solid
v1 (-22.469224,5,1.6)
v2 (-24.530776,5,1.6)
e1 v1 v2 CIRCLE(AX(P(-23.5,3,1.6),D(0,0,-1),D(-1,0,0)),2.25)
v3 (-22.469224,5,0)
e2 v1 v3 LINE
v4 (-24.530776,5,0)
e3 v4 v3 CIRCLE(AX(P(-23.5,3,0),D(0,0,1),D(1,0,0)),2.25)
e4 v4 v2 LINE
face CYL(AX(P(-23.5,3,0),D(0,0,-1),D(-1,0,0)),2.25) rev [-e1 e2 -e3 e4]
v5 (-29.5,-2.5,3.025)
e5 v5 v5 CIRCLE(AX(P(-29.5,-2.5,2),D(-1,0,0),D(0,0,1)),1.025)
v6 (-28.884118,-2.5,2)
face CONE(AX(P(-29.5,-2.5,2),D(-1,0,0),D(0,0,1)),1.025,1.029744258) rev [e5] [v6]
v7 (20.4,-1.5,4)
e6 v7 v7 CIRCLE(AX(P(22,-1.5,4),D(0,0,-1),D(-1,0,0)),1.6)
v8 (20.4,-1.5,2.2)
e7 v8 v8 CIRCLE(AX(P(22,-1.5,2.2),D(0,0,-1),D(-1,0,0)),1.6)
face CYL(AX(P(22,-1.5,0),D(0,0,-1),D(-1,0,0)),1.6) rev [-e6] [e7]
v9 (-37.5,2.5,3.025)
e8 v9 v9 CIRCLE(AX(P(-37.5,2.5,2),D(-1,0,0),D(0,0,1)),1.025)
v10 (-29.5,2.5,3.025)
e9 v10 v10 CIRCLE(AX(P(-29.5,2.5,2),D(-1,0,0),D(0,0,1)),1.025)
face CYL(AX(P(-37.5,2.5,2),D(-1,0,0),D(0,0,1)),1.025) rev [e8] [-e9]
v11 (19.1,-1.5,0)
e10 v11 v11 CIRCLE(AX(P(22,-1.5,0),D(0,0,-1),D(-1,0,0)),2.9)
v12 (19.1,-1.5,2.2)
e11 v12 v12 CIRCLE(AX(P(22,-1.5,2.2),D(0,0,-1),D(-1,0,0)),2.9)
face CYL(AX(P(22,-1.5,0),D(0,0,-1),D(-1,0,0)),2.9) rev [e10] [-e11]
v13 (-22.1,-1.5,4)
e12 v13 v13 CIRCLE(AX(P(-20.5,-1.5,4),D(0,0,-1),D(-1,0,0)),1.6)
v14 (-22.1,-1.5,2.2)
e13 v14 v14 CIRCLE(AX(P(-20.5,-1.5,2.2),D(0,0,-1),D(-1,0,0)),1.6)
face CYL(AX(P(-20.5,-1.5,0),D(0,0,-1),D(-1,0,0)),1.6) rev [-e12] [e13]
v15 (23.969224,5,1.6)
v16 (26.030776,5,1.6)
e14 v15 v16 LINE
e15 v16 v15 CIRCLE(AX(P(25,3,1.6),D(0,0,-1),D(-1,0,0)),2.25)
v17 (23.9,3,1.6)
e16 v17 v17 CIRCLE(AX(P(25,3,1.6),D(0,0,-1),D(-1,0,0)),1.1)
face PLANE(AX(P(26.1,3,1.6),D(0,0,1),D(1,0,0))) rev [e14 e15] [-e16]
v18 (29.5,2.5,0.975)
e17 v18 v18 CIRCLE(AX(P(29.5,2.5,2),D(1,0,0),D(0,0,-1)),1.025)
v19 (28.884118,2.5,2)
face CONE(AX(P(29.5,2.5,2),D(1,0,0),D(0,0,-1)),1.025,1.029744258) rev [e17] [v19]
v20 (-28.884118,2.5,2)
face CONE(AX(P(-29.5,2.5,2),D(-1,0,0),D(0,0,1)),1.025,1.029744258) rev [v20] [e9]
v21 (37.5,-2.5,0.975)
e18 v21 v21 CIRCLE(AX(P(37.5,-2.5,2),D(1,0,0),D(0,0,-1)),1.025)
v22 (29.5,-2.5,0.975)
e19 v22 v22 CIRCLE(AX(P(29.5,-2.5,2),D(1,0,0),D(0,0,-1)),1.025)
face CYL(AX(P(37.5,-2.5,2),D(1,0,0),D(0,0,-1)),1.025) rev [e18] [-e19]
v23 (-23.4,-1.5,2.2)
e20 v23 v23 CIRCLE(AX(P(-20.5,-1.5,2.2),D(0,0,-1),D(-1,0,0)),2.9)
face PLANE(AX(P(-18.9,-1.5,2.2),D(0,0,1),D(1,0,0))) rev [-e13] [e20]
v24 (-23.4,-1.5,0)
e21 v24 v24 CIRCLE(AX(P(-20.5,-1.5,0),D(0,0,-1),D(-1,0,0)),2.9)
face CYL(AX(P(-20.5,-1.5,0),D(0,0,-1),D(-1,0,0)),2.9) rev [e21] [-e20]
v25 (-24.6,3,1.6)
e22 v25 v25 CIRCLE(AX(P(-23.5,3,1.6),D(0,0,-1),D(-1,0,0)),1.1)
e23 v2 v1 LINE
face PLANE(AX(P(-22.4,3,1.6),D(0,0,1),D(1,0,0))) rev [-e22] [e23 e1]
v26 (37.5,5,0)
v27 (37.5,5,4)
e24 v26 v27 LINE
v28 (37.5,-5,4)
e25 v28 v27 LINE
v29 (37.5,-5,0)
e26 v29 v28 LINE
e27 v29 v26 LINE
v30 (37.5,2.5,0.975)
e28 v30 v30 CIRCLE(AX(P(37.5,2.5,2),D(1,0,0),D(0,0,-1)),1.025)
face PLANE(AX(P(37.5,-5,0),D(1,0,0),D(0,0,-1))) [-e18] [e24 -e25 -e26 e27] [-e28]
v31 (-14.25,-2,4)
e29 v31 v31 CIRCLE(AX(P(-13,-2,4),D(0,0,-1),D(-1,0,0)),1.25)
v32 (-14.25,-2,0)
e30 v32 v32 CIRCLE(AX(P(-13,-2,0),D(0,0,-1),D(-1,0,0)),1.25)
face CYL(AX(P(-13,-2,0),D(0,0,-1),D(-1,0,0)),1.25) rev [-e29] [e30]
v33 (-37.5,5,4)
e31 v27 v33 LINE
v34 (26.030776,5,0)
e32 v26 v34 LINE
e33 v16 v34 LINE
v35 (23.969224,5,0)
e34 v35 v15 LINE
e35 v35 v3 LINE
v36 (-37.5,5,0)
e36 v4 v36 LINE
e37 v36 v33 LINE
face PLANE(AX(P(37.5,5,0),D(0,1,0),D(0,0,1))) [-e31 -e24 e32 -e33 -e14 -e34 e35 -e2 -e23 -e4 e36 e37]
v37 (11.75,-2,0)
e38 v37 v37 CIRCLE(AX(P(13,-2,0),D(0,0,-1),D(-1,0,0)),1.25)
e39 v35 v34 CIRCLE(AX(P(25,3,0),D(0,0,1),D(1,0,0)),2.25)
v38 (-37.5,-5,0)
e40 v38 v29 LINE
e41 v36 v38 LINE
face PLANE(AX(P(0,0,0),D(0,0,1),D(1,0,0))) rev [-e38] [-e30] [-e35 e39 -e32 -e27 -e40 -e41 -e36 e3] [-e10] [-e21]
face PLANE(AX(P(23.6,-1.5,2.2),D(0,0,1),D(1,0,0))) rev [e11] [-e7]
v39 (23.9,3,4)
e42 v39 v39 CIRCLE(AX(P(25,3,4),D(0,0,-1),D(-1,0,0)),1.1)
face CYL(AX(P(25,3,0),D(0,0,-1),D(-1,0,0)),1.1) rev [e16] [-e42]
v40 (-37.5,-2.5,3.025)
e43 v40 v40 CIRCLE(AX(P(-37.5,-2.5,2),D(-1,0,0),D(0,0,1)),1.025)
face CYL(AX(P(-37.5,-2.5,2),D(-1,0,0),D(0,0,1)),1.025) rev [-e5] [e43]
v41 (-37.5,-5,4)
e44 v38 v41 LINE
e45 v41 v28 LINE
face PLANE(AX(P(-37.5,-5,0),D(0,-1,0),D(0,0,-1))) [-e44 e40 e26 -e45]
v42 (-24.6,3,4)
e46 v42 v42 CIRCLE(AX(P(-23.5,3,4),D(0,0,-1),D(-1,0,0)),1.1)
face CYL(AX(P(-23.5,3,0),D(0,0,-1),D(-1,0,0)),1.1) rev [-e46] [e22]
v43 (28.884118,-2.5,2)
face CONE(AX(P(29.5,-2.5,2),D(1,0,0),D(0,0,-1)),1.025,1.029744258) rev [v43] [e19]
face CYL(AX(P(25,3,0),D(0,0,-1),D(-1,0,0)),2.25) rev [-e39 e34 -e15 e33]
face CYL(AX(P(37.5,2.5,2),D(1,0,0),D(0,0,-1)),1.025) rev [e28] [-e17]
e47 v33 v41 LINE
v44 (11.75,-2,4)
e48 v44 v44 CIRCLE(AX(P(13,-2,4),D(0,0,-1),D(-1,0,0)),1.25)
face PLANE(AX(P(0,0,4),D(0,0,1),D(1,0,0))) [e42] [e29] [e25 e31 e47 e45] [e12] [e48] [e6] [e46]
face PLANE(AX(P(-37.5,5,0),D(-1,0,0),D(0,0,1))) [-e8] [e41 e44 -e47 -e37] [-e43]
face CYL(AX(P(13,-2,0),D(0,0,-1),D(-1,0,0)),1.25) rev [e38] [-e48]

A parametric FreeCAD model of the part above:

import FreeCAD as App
import Part
import Sketcher
from FreeCAD import Vector


def add_polygon(sketch, points):
    """Adds a closed chain of lines whose ends are joined by coincident constraints."""
    first, n = sketch.GeometryCount, len(points)
    for a, b in zip(points, points[1:] + points[:1]):
        sketch.addGeometry(Part.LineSegment(App.Vector(*a, 0), App.Vector(*b, 0)), False)
    for i in range(n):
        sketch.addConstraint(Sketcher.Constraint("Coincident", first + i, 2, first + (i + 1) % n, 1))

doc = App.newDocument("Part")
body = doc.addObject("PartDesign::Body", "Body")

# Sketch on XY plane
sketch1 = body.newObject("Sketcher::SketchObject", "Sketch")
sketch1.AttachmentSupport = (doc.getObject("XY_Plane"), [""])
sketch1.MapMode = "FlatFace"
sketch1.AttachmentOffset = App.Placement(Vector(0, 0, 4), App.Rotation())
add_polygon(sketch1, [(-37.5, 5), (-37.5, -5), (37.5, -5), (37.5, 5)])  # lines 0-3
sketch1.addConstraint(Sketcher.Constraint("Vertical", 0))
sketch1.addConstraint(Sketcher.Constraint("Horizontal", 1))
sketch1.addConstraint(Sketcher.Constraint("Vertical", 2))
sketch1.addConstraint(Sketcher.Constraint("Horizontal", 3))
sketch1.addConstraint(Sketcher.Constraint("Symmetric", 0, 2, 2, 2, -1, 1))
sketch1.addConstraint(Sketcher.Constraint("DistanceX", 1, 1, 1, 2, 75.0))
sketch1.addConstraint(Sketcher.Constraint("DistanceY", 0, 2, 0, 1, 10.0))
pad1 = body.newObject("PartDesign::Pad", "Pad")
pad1.Profile = sketch1
pad1.Length = 4
pad1.Reversed = True

# Sketch on XY plane
sketch2 = body.newObject("Sketcher::SketchObject", "Sketch001")
sketch2.AttachmentSupport = (doc.getObject("XY_Plane"), [""])
sketch2.MapMode = "FlatFace"
sketch2.addGeometry(Part.Circle(Vector(13, -2, 0), Vector(0, 0, 1), 1.25), False)
sketch2.addGeometry(Part.Circle(Vector(-13, -2, 0), Vector(0, 0, 1), 1.25), False)
sketch2.addConstraint(Sketcher.Constraint("Equal", 0, 1))
sketch2.addConstraint(Sketcher.Constraint("Symmetric", 0, 3, 1, 3, -2))
sketch2.addConstraint(Sketcher.Constraint("Diameter", 0, 2.5))
sketch2.addConstraint(Sketcher.Constraint("DistanceX", -1, 1, 0, 3, 13.0))
sketch2.addConstraint(Sketcher.Constraint("DistanceY", 0, 3, -1, 1, 2.0))
doc.recompute()
hole = body.newObject("PartDesign::Hole", "Hole")
hole.Profile = sketch2
hole.ThreadType = "None"
hole.Diameter = 2.5
hole.DepthType = "Dimension"
hole.Depth = 4
hole.DrillPoint = "Flat"
hole.Reversed = True

# Sketch on XY plane
sketch3 = body.newObject("Sketcher::SketchObject", "Sketch002")
sketch3.AttachmentSupport = (doc.getObject("XY_Plane"), [""])
sketch3.MapMode = "FlatFace"
sketch3.addGeometry(Part.Circle(Vector(22, -1.5, 0), Vector(0, 0, 1), 1.6), False)
sketch3.addGeometry(Part.Circle(Vector(-20.5, -1.5, 0), Vector(0, 0, 1), 1.6), False)
sketch3.addConstraint(Sketcher.Constraint("Equal", 0, 1))
sketch3.addConstraint(Sketcher.Constraint("Horizontal", 0, 3, 1, 3))
sketch3.addConstraint(Sketcher.Constraint("Diameter", 0, 3.2))
sketch3.addConstraint(Sketcher.Constraint("DistanceX", -1, 1, 0, 3, 22.0))
sketch3.addConstraint(Sketcher.Constraint("DistanceY", 0, 3, -1, 1, 1.5))
sketch3.addConstraint(Sketcher.Constraint("DistanceX", 1, 3, -1, 1, 20.5))
doc.recompute()
hole2 = body.newObject("PartDesign::Hole", "Hole001")
hole2.Profile = sketch3
hole2.ThreadType = "None"
hole2.Diameter = 3.2
hole2.DepthType = "Dimension"
hole2.Depth = 4
hole2.DrillPoint = "Flat"
hole2.HoleCutType = "Counterbore"
hole2.HoleCutDiameter = 5.8
hole2.HoleCutDepth = 2.2
hole2.Reversed = True

# Sketch on XY plane
sketch4 = body.newObject("Sketcher::SketchObject", "Sketch003")
sketch4.AttachmentSupport = (doc.getObject("XY_Plane"), [""])
sketch4.MapMode = "FlatFace"
sketch4.addGeometry(Part.Circle(Vector(-23.5, 3, 0), Vector(0, 0, 1), 1.1), False)
sketch4.addGeometry(Part.Circle(Vector(25, 3, 0), Vector(0, 0, 1), 1.1), False)
sketch4.addConstraint(Sketcher.Constraint("Equal", 0, 1))
sketch4.addConstraint(Sketcher.Constraint("Horizontal", 0, 3, 1, 3))
sketch4.addConstraint(Sketcher.Constraint("Diameter", 0, 2.2))
sketch4.addConstraint(Sketcher.Constraint("DistanceY", -1, 1, 0, 3, 3.0))
sketch4.addConstraint(Sketcher.Constraint("DistanceX", -1, 1, 1, 3, 25.0))
sketch4.addConstraint(Sketcher.Constraint("DistanceX", 0, 3, -1, 1, 23.5))
doc.recompute()
hole3 = body.newObject("PartDesign::Hole", "Hole002")
hole3.Profile = sketch4
hole3.ThreadType = "None"
hole3.Diameter = 2.2
hole3.DepthType = "Dimension"
hole3.Depth = 4
hole3.DrillPoint = "Flat"
hole3.HoleCutType = "Counterbore"
hole3.HoleCutDiameter = 4.5
hole3.HoleCutDepth = 1.6
hole3.Reversed = True

# Sketch on YZ plane
sketch5 = body.newObject("Sketcher::SketchObject", "Sketch004")
sketch5.AttachmentSupport = (doc.getObject("YZ_Plane"), [""])
sketch5.MapMode = "FlatFace"
sketch5.AttachmentOffset = App.Placement(Vector(0, 0, 37.5), App.Rotation())
sketch5.addGeometry(Part.Circle(Vector(2.5, 2, 0), Vector(0, 0, 1), 1.025), False)
sketch5.addGeometry(Part.Circle(Vector(-2.5, 2, 0), Vector(0, 0, 1), 1.025), False)
sketch5.addConstraint(Sketcher.Constraint("Equal", 0, 1))
sketch5.addConstraint(Sketcher.Constraint("Symmetric", 0, 3, 1, 3, -2))
sketch5.addConstraint(Sketcher.Constraint("Diameter", 0, 2.05))
sketch5.addConstraint(Sketcher.Constraint("DistanceY", -1, 1, 0, 3, 2.0))
sketch5.addConstraint(Sketcher.Constraint("DistanceX", 1, 3, 0, 3, 5.0))
doc.recompute()
hole4 = body.newObject("PartDesign::Hole", "Hole003")
hole4.Profile = sketch5
hole4.ThreadType = "None"
hole4.Diameter = 2.05
hole4.DepthType = "Dimension"
hole4.Depth = 8
hole4.DrillPoint = "Angled"
hole4.DrillPointAngle = 118

# Sketch on YZ plane
sketch6 = body.newObject("Sketcher::SketchObject", "Sketch005")
sketch6.AttachmentSupport = (doc.getObject("YZ_Plane"), [""])
sketch6.MapMode = "FlatFace"
sketch6.AttachmentOffset = App.Placement(Vector(0, 0, -37.5), App.Rotation())
sketch6.addGeometry(Part.Circle(Vector(-2.5, 2, 0), Vector(0, 0, 1), 1.025), False)
sketch6.addGeometry(Part.Circle(Vector(2.5, 2, 0), Vector(0, 0, 1), 1.025), False)
sketch6.addConstraint(Sketcher.Constraint("Equal", 0, 1))
sketch6.addConstraint(Sketcher.Constraint("Symmetric", 0, 3, 1, 3, -2))
sketch6.addConstraint(Sketcher.Constraint("Diameter", 0, 2.05))
sketch6.addConstraint(Sketcher.Constraint("DistanceY", -1, 1, 0, 3, 2.0))
sketch6.addConstraint(Sketcher.Constraint("DistanceX", 0, 3, 1, 3, 5.0))
doc.recompute()
hole5 = body.newObject("PartDesign::Hole", "Hole004")
hole5.Profile = sketch6
hole5.ThreadType = "None"
hole5.Diameter = 2.05
hole5.DepthType = "Dimension"
hole5.Depth = 8
hole5.DrillPoint = "Angled"
hole5.DrillPointAngle = 118
hole5.Reversed = True

doc.recompute()
